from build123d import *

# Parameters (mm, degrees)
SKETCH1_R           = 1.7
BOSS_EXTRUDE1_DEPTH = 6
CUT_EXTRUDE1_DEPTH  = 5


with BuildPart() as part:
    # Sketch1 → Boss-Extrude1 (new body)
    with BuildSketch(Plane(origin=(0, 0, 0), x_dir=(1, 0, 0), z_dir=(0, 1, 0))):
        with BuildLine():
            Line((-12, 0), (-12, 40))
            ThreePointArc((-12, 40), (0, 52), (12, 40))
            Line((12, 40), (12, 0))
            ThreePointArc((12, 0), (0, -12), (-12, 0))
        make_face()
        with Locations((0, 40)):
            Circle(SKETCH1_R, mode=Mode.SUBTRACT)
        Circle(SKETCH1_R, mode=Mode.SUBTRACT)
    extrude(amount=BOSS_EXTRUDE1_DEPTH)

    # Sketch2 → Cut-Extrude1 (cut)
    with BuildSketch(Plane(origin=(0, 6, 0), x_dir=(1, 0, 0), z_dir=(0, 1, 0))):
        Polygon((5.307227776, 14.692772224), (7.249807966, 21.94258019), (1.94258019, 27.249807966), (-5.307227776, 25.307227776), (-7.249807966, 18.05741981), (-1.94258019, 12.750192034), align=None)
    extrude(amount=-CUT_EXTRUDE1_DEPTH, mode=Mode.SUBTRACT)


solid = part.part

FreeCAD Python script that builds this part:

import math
import FreeCAD as App
import Part
import Sketcher
from FreeCAD import Vector
Q = App.Units.Quantity

doc = App.newDocument("Part")
body = doc.addObject("PartDesign::Body", "Body")

sketch1 = doc.addObject("Sketcher::SketchObject", "Sketch")
body.addObject(sketch1)
sketch1.AttachmentSupport = (doc.XZ_Plane, [""])
sketch1.MapMode = "FlatFace"
sketch1.addGeometry([
    Part.LineSegment(Vector(-12, -40, 0), Vector(-12, 0, 0)),
    Part.ArcOfCircle(Part.Circle(Vector(0, 0, 0), Vector(0, 0, 1), 12), math.radians(0), math.radians(180)),
    Part.LineSegment(Vector(12, 0, 0), Vector(12, -40, 0)),
    Part.ArcOfCircle(Part.Circle(Vector(0, -40, 0), Vector(0, 0, 1), 12), math.radians(180), math.radians(360)),
    Part.Circle(Vector(0, 0, 0), Vector(0, 0, 1), 1.7),
    Part.Circle(Vector(0, -40, 0), Vector(0, 0, 1), 1.7),
], False)
sketch1.addConstraint([
    Sketcher.Constraint("Tangent", 0, 2, 1, 2),
    Sketcher.Constraint("Tangent", 1, 1, 2, 1),
    Sketcher.Constraint("Tangent", 2, 2, 3, 2),
    Sketcher.Constraint("Tangent", 3, 1, 0, 1),
    Sketcher.Constraint("Vertical", 0),
    Sketcher.Constraint("Vertical", 2),
    Sketcher.Constraint("Coincident", 1, 3, -1, 1),
    Sketcher.Constraint("Coincident", 4, 3, -1, 1),
    Sketcher.Constraint("Coincident", 5, 3, 3, 3),
    Sketcher.Constraint("Equal", 4, 5),
    Sketcher.Constraint("Radius", 1, 12.0),
    Sketcher.Constraint("Diameter", 4, 3.4),
    Sketcher.Constraint("DistanceY", 0, 1, 0, 2, 40.0),
])
pad1 = doc.addObject("PartDesign::Pad", "Pad")
body.addObject(pad1)
pad1.Profile = sketch1
pad1.Length = 6
pad1.Reversed = True

sketch2 = doc.addObject("Sketcher::SketchObject", "Sketch001")
body.addObject(sketch2)
sketch2.AttachmentSupport = (doc.XZ_Plane, [""])
sketch2.MapMode = "FlatFace"
sketch2.AttachmentOffset = App.Placement(Vector(0, 0, -6), App.Rotation())
sketch2.addGeometry([
    Part.LineSegment(Vector(5, -15, 0), Vector(7, -22, 0)),
    Part.LineSegment(Vector(7, -22, 0), Vector(2, -27, 0)),
    Part.LineSegment(Vector(2, -27, 0), Vector(-5, -25, 0)),
    Part.LineSegment(Vector(-5, -25, 0), Vector(-7, -18, 0)),
    Part.LineSegment(Vector(-7, -18, 0), Vector(-2, -13, 0)),
    Part.LineSegment(Vector(-2, -13, 0), Vector(5, -15, 0)),
], False)
sketch2.addConstraint([
    Sketcher.Constraint("Coincident", 0, 2, 1, 1),
    Sketcher.Constraint("Coincident", 1, 2, 2, 1),
    Sketcher.Constraint("Coincident", 2, 2, 3, 1),
    Sketcher.Constraint("Coincident", 3, 2, 4, 1),
    Sketcher.Constraint("Coincident", 4, 2, 5, 1),
    Sketcher.Constraint("Coincident", 5, 2, 0, 1),
    Sketcher.Constraint("Parallel", 0, 3),
    Sketcher.Constraint("Parallel", 1, 4),
    Sketcher.Constraint("Parallel", 2, 5),
    Sketcher.Constraint("Equal", 0, 1),
    Sketcher.Constraint("Equal", 1, 2),
    Sketcher.Constraint("Equal", 2, 3),
    Sketcher.Constraint("Angle", 0, Q("-75 deg")),
    Sketcher.Constraint("Angle", 1, Q("-135 deg")),
    Sketcher.Constraint("Angle", 2, Q("165 deg")),
    Sketcher.Constraint("DistanceY", 0, 2, -1, 1, 21.94258),
    Sketcher.Constraint("DistanceX", -1, 1, 1, 2, 1.94258),
    Sketcher.Constraint("DistanceY", 3, 2, -1, 1, 18.05742),
])
pocket1 = doc.addObject("PartDesign::Pocket", "Pocket")
body.addObject(pocket1)
pocket1.Profile = sketch2
pocket1.Length = 5
pocket1.Reversed = True

doc.recompute()
